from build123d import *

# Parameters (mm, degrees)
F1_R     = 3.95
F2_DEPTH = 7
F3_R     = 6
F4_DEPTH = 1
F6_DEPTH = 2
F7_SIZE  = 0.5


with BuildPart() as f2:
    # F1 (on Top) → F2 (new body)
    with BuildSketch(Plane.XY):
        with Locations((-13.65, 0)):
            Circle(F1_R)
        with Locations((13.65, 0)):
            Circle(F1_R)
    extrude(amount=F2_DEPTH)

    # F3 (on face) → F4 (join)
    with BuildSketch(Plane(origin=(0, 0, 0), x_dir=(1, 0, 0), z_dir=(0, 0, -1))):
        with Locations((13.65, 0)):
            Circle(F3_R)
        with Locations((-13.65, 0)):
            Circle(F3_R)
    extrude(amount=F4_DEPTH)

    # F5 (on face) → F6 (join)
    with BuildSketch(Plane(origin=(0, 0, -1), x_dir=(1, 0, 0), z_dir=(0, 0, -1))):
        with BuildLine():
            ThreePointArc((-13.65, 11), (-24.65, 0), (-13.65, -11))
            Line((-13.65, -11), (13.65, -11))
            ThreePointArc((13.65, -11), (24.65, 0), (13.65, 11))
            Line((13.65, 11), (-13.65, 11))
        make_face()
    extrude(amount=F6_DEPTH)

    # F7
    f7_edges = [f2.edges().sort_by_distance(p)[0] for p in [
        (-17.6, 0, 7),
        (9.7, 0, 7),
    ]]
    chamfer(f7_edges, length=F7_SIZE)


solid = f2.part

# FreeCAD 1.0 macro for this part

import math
import FreeCAD as App
import Part
import Sketcher
from FreeCAD import Vector
Q = App.Units.Quantity


def edges_at(feature, points):
    """Names of the edges that pass closest to the given points."""
    edges = feature.Shape.Edges
    near = lambda p: min(range(len(edges)), key=lambda i: edges[i].distToShape(Part.Vertex(*p))[0])
    return sorted({f"Edge{near(p) + 1}" for p in points})

doc = App.newDocument("Part")
body = doc.addObject("PartDesign::Body", "Body")
body.AllowCompound = True

sketch1 = body.newObject("Sketcher::SketchObject", "Sketch")
sketch1.AttachmentSupport = (doc.getObject("XY_Plane"), [""])
sketch1.MapMode = "FlatFace"
sketch1.addGeometry([
    Part.Circle(Vector(-13.7, 0, 0), Vector(0, 0, 1), 4),
    Part.Circle(Vector(13.7, 0, 0), Vector(0, 0, 1), 4),
], False)
sketch1.addConstraint([
    Sketcher.Constraint("Equal", 0, 1),
    Sketcher.Constraint("Symmetric", 0, 3, 1, 3, -1, 1),
    Sketcher.Constraint("PointOnObject", 0, 3, -1),
    Sketcher.Constraint("Diameter", 0, Q("7.9 mm")),
    Sketcher.Constraint("DistanceX", 0, 3, 1, 3, Q("27.3 mm")),
])
pad1 = body.newObject("PartDesign::Pad", "Pad")
pad1.Profile = sketch1
pad1.Length = 7

sketch2 = body.newObject("Sketcher::SketchObject", "Sketch001")
sketch2.AttachmentSupport = (doc.getObject("XY_Plane"), [""])
sketch2.MapMode = "FlatFace"
sketch2.addGeometry([
    Part.Circle(Vector(14, 0, 0), Vector(0, 0, 1), 6),
    Part.Circle(Vector(-14, 0, 0), Vector(0, 0, 1), 6),
], False)
sketch2.addConstraint([
    Sketcher.Constraint("Equal", 0, 1),
    Sketcher.Constraint("Symmetric", 0, 3, 1, 3, -1, 1),
    Sketcher.Constraint("PointOnObject", 0, 3, -1),
    Sketcher.Constraint("Diameter", 0, Q("12 mm")),
    Sketcher.Constraint("DistanceX", 1, 3, 0, 3, Q("27.3 mm")),
])
pad2 = body.newObject("PartDesign::Pad", "Pad001")
pad2.Profile = sketch2
pad2.Length = 1
pad2.Reversed = True

sketch3 = body.newObject("Sketcher::SketchObject", "Sketch002")
sketch3.AttachmentSupport = (doc.getObject("XY_Plane"), [""])
sketch3.MapMode = "FlatFace"
sketch3.AttachmentOffset = App.Placement(Vector(0, 0, -1), App.Rotation())
sketch3.addGeometry([
    Part.ArcOfCircle(Part.Circle(Vector(-14, 0, 0), Vector(0, 0, 1), 11), math.radians(90), math.radians(270)),
    Part.LineSegment(Vector(-14, 11, 0), Vector(14, 11, 0)),
    Part.ArcOfCircle(Part.Circle(Vector(14, 0, 0), Vector(0, 0, 1), 11), math.radians(-90), math.radians(90)),
    Part.LineSegment(Vector(14, -11, 0), Vector(-14, -11, 0)),
], False)
sketch3.addConstraint([
    Sketcher.Constraint("Tangent", 0, 1, 1, 1),
    Sketcher.Constraint("Tangent", 1, 2, 2, 2),
    Sketcher.Constraint("Tangent", 2, 1, 3, 1),
    Sketcher.Constraint("Tangent", 3, 2, 0, 2),
    Sketcher.Constraint("Horizontal", 1),
    Sketcher.Constraint("Horizontal", 3),
    Sketcher.Constraint("Symmetric", 0, 3, 2, 3, -1, 1),
    Sketcher.Constraint("Radius", 0, Q("11 mm")),
    Sketcher.Constraint("DistanceX", 1, 1, 1, 2, Q("27.3 mm")),
])
pad3 = body.newObject("PartDesign::Pad", "Pad002")
pad3.Profile = sketch3
pad3.Length = 2
pad3.Reversed = True
doc.recompute()

chamfer = body.newObject("PartDesign::Chamfer", "Chamfer")
chamfer.Base = (pad3, edges_at(pad3, [(-17.6, 0, 7), (9.7, 0, 7)]))
chamfer.Size = 0.5

doc.recompute()
